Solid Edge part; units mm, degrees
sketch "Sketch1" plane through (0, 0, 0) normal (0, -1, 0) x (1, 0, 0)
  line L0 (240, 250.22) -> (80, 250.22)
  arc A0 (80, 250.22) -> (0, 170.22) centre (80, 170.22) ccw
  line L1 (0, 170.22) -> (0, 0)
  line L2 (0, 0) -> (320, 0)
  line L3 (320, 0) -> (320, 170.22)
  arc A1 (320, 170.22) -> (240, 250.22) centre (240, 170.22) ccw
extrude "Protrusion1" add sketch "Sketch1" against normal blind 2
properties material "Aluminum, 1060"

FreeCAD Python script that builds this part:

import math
import FreeCAD as App
import Part
import Sketcher

doc = App.newDocument("Part")
body = doc.addObject("PartDesign::Body", "Body")

sketch1 = body.newObject("Sketcher::SketchObject", "Sketch")
sketch1.AttachmentSupport = (doc.getObject("XZ_Plane"), [""])
sketch1.MapMode = "FlatFace"
sketch1.addGeometry([
    Part.ArcOfCircle(Part.Circle(App.Vector(240, 170.22, 0), App.Vector(0, 0, 1), 80), math.radians(0), math.radians(90)),
    Part.LineSegment(App.Vector(240, 250.22, 0), App.Vector(80, 250.22, 0)),
    Part.ArcOfCircle(Part.Circle(App.Vector(80, 170.22, 0), App.Vector(0, 0, 1), 80), math.radians(90), math.radians(180)),
    Part.LineSegment(App.Vector(0, 170.22, 0), App.Vector(0, 0, 0)),
    Part.LineSegment(App.Vector(0, 0, 0), App.Vector(320, 0, 0)),
    Part.LineSegment(App.Vector(320, 0, 0), App.Vector(320, 170.22, 0)),
], False)
sketch1.addConstraint([
    Sketcher.Constraint("Tangent", 0, 2, 1, 1),
    Sketcher.Constraint("Tangent", 1, 2, 2, 1),
    Sketcher.Constraint("Tangent", 2, 2, 3, 1),
    Sketcher.Constraint("Coincident", 3, 2, 4, 1),
    Sketcher.Constraint("Coincident", 4, 2, 5, 1),
    Sketcher.Constraint("Tangent", 5, 2, 0, 1),
    Sketcher.Constraint("Horizontal", 1),
    Sketcher.Constraint("Vertical", 3),
    Sketcher.Constraint("Horizontal", 4),
    Sketcher.Constraint("Vertical", 5),
    Sketcher.Constraint("Coincident", 3, 2, -1, 1),
    Sketcher.Constraint("Equal", 0, 2),
    Sketcher.Constraint("Radius", 0, 80.0),
    Sketcher.Constraint("DistanceX", 1, 2, 1, 1, 160.0),
    Sketcher.Constraint("DistanceY", 3, 2, 3, 1, 170.22),
])
pad1 = body.newObject("PartDesign::Pad", "Pad")
pad1.Profile = sketch1
pad1.Length = 2
pad1.Reversed = True

doc.recompute()
